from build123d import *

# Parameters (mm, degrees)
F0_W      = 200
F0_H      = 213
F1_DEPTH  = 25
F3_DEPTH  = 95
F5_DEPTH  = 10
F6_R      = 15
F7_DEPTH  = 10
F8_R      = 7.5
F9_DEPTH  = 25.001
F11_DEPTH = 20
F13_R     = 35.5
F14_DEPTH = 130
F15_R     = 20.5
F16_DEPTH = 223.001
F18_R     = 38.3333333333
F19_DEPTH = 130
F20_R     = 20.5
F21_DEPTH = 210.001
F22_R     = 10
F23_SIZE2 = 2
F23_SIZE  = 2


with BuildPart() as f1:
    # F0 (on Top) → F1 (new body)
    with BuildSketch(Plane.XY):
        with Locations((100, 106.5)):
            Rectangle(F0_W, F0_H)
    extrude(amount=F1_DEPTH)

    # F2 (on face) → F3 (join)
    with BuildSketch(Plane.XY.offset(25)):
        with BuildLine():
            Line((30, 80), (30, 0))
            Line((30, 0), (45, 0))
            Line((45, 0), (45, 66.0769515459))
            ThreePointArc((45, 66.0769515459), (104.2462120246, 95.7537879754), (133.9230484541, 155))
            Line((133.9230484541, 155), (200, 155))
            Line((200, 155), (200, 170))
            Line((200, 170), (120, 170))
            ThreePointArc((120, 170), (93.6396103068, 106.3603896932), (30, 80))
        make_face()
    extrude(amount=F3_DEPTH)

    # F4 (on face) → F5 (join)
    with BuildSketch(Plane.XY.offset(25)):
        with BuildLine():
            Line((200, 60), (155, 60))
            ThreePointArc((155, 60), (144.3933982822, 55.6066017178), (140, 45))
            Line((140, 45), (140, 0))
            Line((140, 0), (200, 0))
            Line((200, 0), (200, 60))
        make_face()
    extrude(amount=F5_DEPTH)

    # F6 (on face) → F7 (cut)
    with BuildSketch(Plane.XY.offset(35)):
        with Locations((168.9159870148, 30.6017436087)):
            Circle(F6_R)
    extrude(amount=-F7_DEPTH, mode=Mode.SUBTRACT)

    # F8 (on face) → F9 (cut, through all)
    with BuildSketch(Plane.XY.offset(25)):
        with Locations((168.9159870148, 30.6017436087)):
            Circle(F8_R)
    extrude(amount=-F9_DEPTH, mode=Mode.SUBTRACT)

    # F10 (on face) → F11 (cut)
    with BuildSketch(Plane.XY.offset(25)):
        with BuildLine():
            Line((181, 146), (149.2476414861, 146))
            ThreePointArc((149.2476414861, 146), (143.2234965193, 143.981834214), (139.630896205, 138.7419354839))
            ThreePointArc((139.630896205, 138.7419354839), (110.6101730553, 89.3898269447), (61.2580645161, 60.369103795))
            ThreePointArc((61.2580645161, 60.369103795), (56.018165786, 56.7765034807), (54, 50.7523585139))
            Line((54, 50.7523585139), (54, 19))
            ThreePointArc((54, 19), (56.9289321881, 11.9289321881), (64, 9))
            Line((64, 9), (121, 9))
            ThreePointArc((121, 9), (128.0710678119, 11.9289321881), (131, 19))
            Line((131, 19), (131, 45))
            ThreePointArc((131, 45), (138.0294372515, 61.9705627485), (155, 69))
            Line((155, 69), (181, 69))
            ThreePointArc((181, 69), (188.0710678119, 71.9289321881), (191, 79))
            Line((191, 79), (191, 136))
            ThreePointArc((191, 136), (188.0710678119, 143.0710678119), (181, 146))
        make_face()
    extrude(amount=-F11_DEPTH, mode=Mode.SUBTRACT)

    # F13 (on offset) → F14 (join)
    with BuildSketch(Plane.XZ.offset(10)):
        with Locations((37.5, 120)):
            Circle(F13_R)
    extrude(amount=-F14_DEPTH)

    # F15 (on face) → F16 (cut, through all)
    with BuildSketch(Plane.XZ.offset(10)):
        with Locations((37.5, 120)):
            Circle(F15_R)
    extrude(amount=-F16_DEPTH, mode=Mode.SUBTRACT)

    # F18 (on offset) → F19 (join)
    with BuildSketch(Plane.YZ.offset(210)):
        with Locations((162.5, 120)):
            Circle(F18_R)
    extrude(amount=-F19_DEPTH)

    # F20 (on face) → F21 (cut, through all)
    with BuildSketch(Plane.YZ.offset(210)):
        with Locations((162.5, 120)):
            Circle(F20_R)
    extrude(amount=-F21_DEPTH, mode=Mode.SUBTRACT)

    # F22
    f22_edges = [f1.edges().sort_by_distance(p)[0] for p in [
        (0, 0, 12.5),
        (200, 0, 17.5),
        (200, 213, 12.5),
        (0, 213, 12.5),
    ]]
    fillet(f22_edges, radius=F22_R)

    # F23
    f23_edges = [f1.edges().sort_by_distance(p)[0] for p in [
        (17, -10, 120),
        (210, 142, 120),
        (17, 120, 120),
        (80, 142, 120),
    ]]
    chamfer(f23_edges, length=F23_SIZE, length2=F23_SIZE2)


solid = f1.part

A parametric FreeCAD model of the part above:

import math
import FreeCAD as App
import Part
import Sketcher


def edges_at(feature, points):
    """Names of the edges that pass closest to the given points."""
    edges = feature.Shape.Edges
    near = lambda p: min(range(len(edges)), key=lambda i: edges[i].distToShape(Part.Vertex(*p))[0])
    return sorted({f"Edge{near(p) + 1}" for p in points})

doc = App.newDocument("Part")
params = doc.addObject("Spreadsheet::Sheet", "Params")
for row, (alias, value) in enumerate([
    ("sketch1_width", "200 mm"),
    ("sketch1_height", "213 mm"),
    ("pad1_length", "25 mm"),
    ("sketch2_radius", "105 mm"),
    ("sketch2_radius2", "90 mm"),
    ("sketch2_width", "15 mm"),
    ("sketch2_width2", "80 mm"),
    ("pad2_length", "95 mm"),
    ("sketch3_radius", "15 mm"),
    ("sketch3_width", "45 mm"),
    ("pad3_length", "10 mm"),
    ("sketch4_diameter", "30 mm"),
    ("pocket1_length", "10 mm"),
    ("sketch5_diameter", "15 mm"),
    ("sketch6_radius", "10 mm"),
    ("sketch6_radius2", "114 mm"),
    ("sketch6_radius3", "24 mm"),
    ("sketch6_width", "57 mm"),
    ("sketch6_width2", "26 mm"),
    ("pocket3_length", "20 mm"),
    ("sketch7_diameter", "71 mm"),
    ("pad4_length", "130 mm"),
    ("sketch8_diameter", "41 mm"),
    ("pad5_length", "130 mm"),
    ("sketch10_diameter", "41 mm"),
    ("fillet_radius", "10 mm"),
    ("chamfer_size", "2 mm"),
    ("chamfer_size2", "2 mm"),
], start=1):
    params.set(f"A{row}", alias)
    params.set(f"B{row}", "=" + value)
    params.setAlias(f"B{row}", alias)

body = doc.addObject("PartDesign::Body", "Body")

# Sketch on XY plane
sketch1 = doc.addObject("Sketcher::SketchObject", "Sketch")
body.addObject(sketch1)
sketch1.AttachmentSupport = (doc.XY_Plane, [""])
sketch1.MapMode = "FlatFace"
sketch1.addGeometry([
    Part.LineSegment(App.Vector(0, 213, 0), App.Vector(0, 0, 0)),
    Part.LineSegment(App.Vector(0, 0, 0), App.Vector(200, 0, 0)),
    Part.LineSegment(App.Vector(200, 0, 0), App.Vector(200, 213, 0)),
    Part.LineSegment(App.Vector(200, 213, 0), App.Vector(0, 213, 0)),
], False)
sketch1.addConstraint([
    Sketcher.Constraint("Coincident", 0, 2, 1, 1),
    Sketcher.Constraint("Coincident", 1, 2, 2, 1),
    Sketcher.Constraint("Coincident", 2, 2, 3, 1),
    Sketcher.Constraint("Coincident", 3, 2, 0, 1),
    Sketcher.Constraint("Vertical", 0),
    Sketcher.Constraint("Horizontal", 1),
    Sketcher.Constraint("Vertical", 2),
    Sketcher.Constraint("Horizontal", 3),
    Sketcher.Constraint("Coincident", 0, 2, -1, 1),
    Sketcher.Constraint("DistanceX", 1, 1, 1, 2, 200.0),
    Sketcher.Constraint("DistanceY", 0, 2, 0, 1, 213.0),
])
sketch1.setExpression("Constraints[9]", "Params.sketch1_width")
sketch1.setExpression("Constraints[10]", "Params.sketch1_height")
pad1 = doc.addObject("PartDesign::Pad", "Pad")
body.addObject(pad1)
pad1.Profile = sketch1
pad1.setExpression("Length", "Params.pad1_length")

# Sketch on XY plane
sketch2 = doc.addObject("Sketcher::SketchObject", "Sketch001")
body.addObject(sketch2)
sketch2.AttachmentSupport = (doc.XY_Plane, [""])
sketch2.MapMode = "FlatFace"
sketch2.AttachmentOffset = App.Placement(App.Vector(0, 0, 25), App.Rotation())
sketch2.addGeometry([
    Part.LineSegment(App.Vector(30, 80, 0), App.Vector(30, 0, 0)),  # 0
    Part.LineSegment(App.Vector(30, 0, 0), App.Vector(45, 0, 0)),  # 1
    Part.LineSegment(App.Vector(45, 0, 0), App.Vector(45, 66, 0)),  # 2
    Part.ArcOfCircle(Part.Circle(App.Vector(30, 170, 0), App.Vector(0, 0, 1), 105), math.radians(-82), math.radians(-8)),  # 3
    Part.LineSegment(App.Vector(134, 155, 0), App.Vector(200, 155, 0)),  # 4
    Part.LineSegment(App.Vector(200, 155, 0), App.Vector(200, 170, 0)),  # 5
    Part.LineSegment(App.Vector(200, 170, 0), App.Vector(120, 170, 0)),  # 6
    Part.ArcOfCircle(Part.Circle(App.Vector(30, 170, 0), App.Vector(0, 0, 1), 90), math.radians(-90), math.radians(0)),  # 7
], False)
sketch2.addConstraint([
    Sketcher.Constraint("Coincident", 0, 2, 1, 1),
    Sketcher.Constraint("Coincident", 1, 2, 2, 1),
    Sketcher.Constraint("Coincident", 2, 2, 3, 1),
    Sketcher.Constraint("Coincident", 3, 2, 4, 1),
    Sketcher.Constraint("Coincident", 4, 2, 5, 1),
    Sketcher.Constraint("Coincident", 5, 2, 6, 1),
    Sketcher.Constraint("Coincident", 6, 2, 7, 2),
    Sketcher.Constraint("Coincident", 7, 1, 0, 1),
    Sketcher.Constraint("Vertical", 0),
    Sketcher.Constraint("Horizontal", 1),
    Sketcher.Constraint("Vertical", 2),
    Sketcher.Constraint("Horizontal", 4),
    Sketcher.Constraint("Vertical", 5),
    Sketcher.Constraint("Horizontal", 6),
    Sketcher.Constraint("Coincident", 7, 3, 3, 3),
    Sketcher.Constraint("PointOnObject", 0, 2, -1),
    Sketcher.Constraint("Horizontal", 7, 3, 5, 2),
    Sketcher.Constraint("Vertical", 7, 3, 0, 2),
    Sketcher.Constraint("Equal", 6, 0),
    Sketcher.Constraint("Equal", 4, 2),
    Sketcher.Constraint("Radius", 3, 105.0),
    Sketcher.Constraint("Radius", 7, 90.0),
    Sketcher.Constraint("DistanceX", 1, 1, 1, 2, 15.0),
    Sketcher.Constraint("DistanceX", 6, 2, 6, 1, 80.0),
    Sketcher.Constraint("DistanceX", -1, 1, 3, 3, 30.0),
])
sketch2.setExpression("Constraints[20]", "Params.sketch2_radius")
sketch2.setExpression("Constraints[21]", "Params.sketch2_radius2")
sketch2.setExpression("Constraints[22]", "Params.sketch2_width")
sketch2.setExpression("Constraints[23]", "Params.sketch2_width2")
pad2 = doc.addObject("PartDesign::Pad", "Pad001")
body.addObject(pad2)
pad2.Profile = sketch2
pad2.setExpression("Length", "Params.pad2_length")

# Sketch on XY plane
sketch3 = doc.addObject("Sketcher::SketchObject", "Sketch002")
body.addObject(sketch3)
sketch3.AttachmentSupport = (doc.XY_Plane, [""])
sketch3.MapMode = "FlatFace"
sketch3.AttachmentOffset = App.Placement(App.Vector(0, 0, 25), App.Rotation())
sketch3.addGeometry([
    Part.LineSegment(App.Vector(200, 60, 0), App.Vector(155, 60, 0)),  # 0
    Part.ArcOfCircle(Part.Circle(App.Vector(155, 45, 0), App.Vector(0, 0, 1), 15), math.radians(90), math.radians(180)),  # 1
    Part.LineSegment(App.Vector(140, 45, 0), App.Vector(140, 0, 0)),  # 2
    Part.LineSegment(App.Vector(140, 0, 0), App.Vector(200, 0, 0)),  # 3
    Part.LineSegment(App.Vector(200, 0, 0), App.Vector(200, 60, 0)),  # 4
], False)
sketch3.addConstraint([
    Sketcher.Constraint("Tangent", 0, 2, 1, 1),
    Sketcher.Constraint("Tangent", 1, 2, 2, 1),
    Sketcher.Constraint("Coincident", 2, 2, 3, 1),
    Sketcher.Constraint("Coincident", 3, 2, 4, 1),
    Sketcher.Constraint("Coincident", 4, 2, 0, 1),
    Sketcher.Constraint("Horizontal", 0),
    Sketcher.Constraint("Vertical", 2),
    Sketcher.Constraint("Horizontal", 3),
    Sketcher.Constraint("Vertical", 4),
    Sketcher.Constraint("PointOnObject", 2, 2, -1),
    Sketcher.Constraint("Equal", 0, 2),
    Sketcher.Constraint("Radius", 1, 15.0),
    Sketcher.Constraint("DistanceX", 0, 2, 0, 1, 45.0),
    Sketcher.Constraint("DistanceX", -1, 1, 1, 3, 155.0),
])
sketch3.setExpression("Constraints[11]", "Params.sketch3_radius")
sketch3.setExpression("Constraints[12]", "Params.sketch3_width")
pad3 = doc.addObject("PartDesign::Pad", "Pad002")
body.addObject(pad3)
pad3.Profile = sketch3
pad3.setExpression("Length", "Params.pad3_length")

# Sketch on XY plane
sketch4 = doc.addObject("Sketcher::SketchObject", "Sketch003")
body.addObject(sketch4)
sketch4.AttachmentSupport = (doc.XY_Plane, [""])
sketch4.MapMode = "FlatFace"
sketch4.AttachmentOffset = App.Placement(App.Vector(0, 0, 35), App.Rotation())
sketch4.addGeometry(Part.Circle(App.Vector(169, 31, 0), App.Vector(0, 0, 1), 15), False)
sketch4.addConstraint([
    Sketcher.Constraint("Diameter", 0, 30.0),
    Sketcher.Constraint("DistanceX", -1, 1, 0, 3, 168.915987),
    Sketcher.Constraint("DistanceY", -1, 1, 0, 3, 30.601744),
])
sketch4.setExpression("Constraints[0]", "Params.sketch4_diameter")
pocket1 = doc.addObject("PartDesign::Pocket", "Pocket")
body.addObject(pocket1)
pocket1.Profile = sketch4
pocket1.setExpression("Length", "Params.pocket1_length")

# Sketch on XY plane
sketch5 = doc.addObject("Sketcher::SketchObject", "Sketch004")
body.addObject(sketch5)
sketch5.AttachmentSupport = (doc.XY_Plane, [""])
sketch5.MapMode = "FlatFace"
sketch5.AttachmentOffset = App.Placement(App.Vector(0, 0, 25), App.Rotation())
sketch5.addGeometry(Part.Circle(App.Vector(169, 31, 0), App.Vector(0, 0, 1), 8), False)
sketch5.addConstraint([
    Sketcher.Constraint("Diameter", 0, 15.0),
    Sketcher.Constraint("DistanceX", -1, 1, 0, 3, 168.915987),
    Sketcher.Constraint("DistanceY", -1, 1, 0, 3, 30.601744),
])
sketch5.setExpression("Constraints[0]", "Params.sketch5_diameter")
pocket2 = doc.addObject("PartDesign::Pocket", "Pocket001")
body.addObject(pocket2)
pocket2.Profile = sketch5
pocket2.Type = "ThroughAll"

# Sketch on XY plane
sketch6 = doc.addObject("Sketcher::SketchObject", "Sketch005")
body.addObject(sketch6)
sketch6.AttachmentSupport = (doc.XY_Plane, [""])
sketch6.MapMode = "FlatFace"
sketch6.AttachmentOffset = App.Placement(App.Vector(0, 0, 25), App.Rotation())
sketch6.addGeometry([
    Part.LineSegment(App.Vector(181, 146, 0), App.Vector(149, 146, 0)),  # 0
    Part.ArcOfCircle(Part.Circle(App.Vector(149, 136, 0), App.Vector(0, 0, 1), 10), math.radians(90), math.radians(164)),  # 1
    Part.ArcOfCircle(Part.Circle(App.Vector(30, 170, 0), App.Vector(0, 0, 1), 114), math.radians(-74), math.radians(-16)),  # 2
    Part.ArcOfCircle(Part.Circle(App.Vector(64, 51, 0), App.Vector(0, 0, 1), 10), math.radians(106), math.radians(180)),  # 3
    Part.LineSegment(App.Vector(54, 51, 0), App.Vector(54, 19, 0)),  # 4
    Part.ArcOfCircle(Part.Circle(App.Vector(64, 19, 0), App.Vector(0, 0, 1), 10), math.radians(180), math.radians(270)),  # 5
    Part.LineSegment(App.Vector(64, 9, 0), App.Vector(121, 9, 0)),  # 6
    Part.ArcOfCircle(Part.Circle(App.Vector(121, 19, 0), App.Vector(0, 0, 1), 10), math.radians(-90), math.radians(0)),  # 7
    Part.LineSegment(App.Vector(131, 19, 0), App.Vector(131, 45, 0)),  # 8
    Part.ArcOfCircle(Part.Circle(App.Vector(155, 45, 0), App.Vector(0, 0, 1), 24), math.radians(90), math.radians(180)),  # 9
    Part.LineSegment(App.Vector(155, 69, 0), App.Vector(181, 69, 0)),  # 10
    Part.ArcOfCircle(Part.Circle(App.Vector(181, 79, 0), App.Vector(0, 0, 1), 10), math.radians(-90), math.radians(0)),  # 11
    Part.LineSegment(App.Vector(191, 79, 0), App.Vector(191, 136, 0)),  # 12
    Part.ArcOfCircle(Part.Circle(App.Vector(181, 136, 0), App.Vector(0, 0, 1), 10), math.radians(0), math.radians(90)),  # 13
], False)
sketch6.addConstraint([
    Sketcher.Constraint("Tangent", 0, 2, 1, 1),
    Sketcher.Constraint("Tangent", 1, 2, 2, 2),
    Sketcher.Constraint("Tangent", 2, 1, 3, 1),
    Sketcher.Constraint("Tangent", 3, 2, 4, 1),
    Sketcher.Constraint("Tangent", 4, 2, 5, 1),
    Sketcher.Constraint("Tangent", 5, 2, 6, 1),
    Sketcher.Constraint("Tangent", 6, 2, 7, 1),
    Sketcher.Constraint("Tangent", 7, 2, 8, 1),
    Sketcher.Constraint("Tangent", 8, 2, 9, 2),
    Sketcher.Constraint("Tangent", 9, 1, 10, 1),
    Sketcher.Constraint("Tangent", 10, 2, 11, 1),
    Sketcher.Constraint("Tangent", 11, 2, 12, 1),
    Sketcher.Constraint("Tangent", 12, 2, 13, 1),
    Sketcher.Constraint("Tangent", 13, 2, 0, 1),
    Sketcher.Constraint("Horizontal", 0),
    Sketcher.Constraint("Vertical", 4),
    Sketcher.Constraint("Horizontal", 6),
    Sketcher.Constraint("Vertical", 8),
    Sketcher.Constraint("Horizontal", 10),
    Sketcher.Constraint("Vertical", 12),
    Sketcher.Constraint("Equal", 1, 3),
    Sketcher.Constraint("Equal", 3, 5),
    Sketcher.Constraint("Equal", 5, 7),
    Sketcher.Constraint("Equal", 7, 11),
    Sketcher.Constraint("Equal", 11, 13),
    Sketcher.Constraint("Equal", 0, 4),
    Sketcher.Constraint("Equal", 10, 8),
    Sketcher.Constraint("Equal", 6, 12),
    Sketcher.Constraint("Radius", 1, 10.0),
    Sketcher.Constraint("Radius", 2, 114.0),
    Sketcher.Constraint("Radius", 9, 24.0),
    Sketcher.Constraint("DistanceX", 6, 1, 6, 2, 57.0),
    Sketcher.Constraint("DistanceX", 10, 1, 10, 2, 26.0),
    Sketcher.Constraint("DistanceY", -1, 1, 1, 3, 136.0),
    Sketcher.Constraint("DistanceX", -1, 1, 2, 3, 30.0),
    Sketcher.Constraint("DistanceY", -1, 1, 2, 3, 170.0),
])
sketch6.setExpression("Constraints[28]", "Params.sketch6_radius")
sketch6.setExpression("Constraints[29]", "Params.sketch6_radius2")
sketch6.setExpression("Constraints[30]", "Params.sketch6_radius3")
sketch6.setExpression("Constraints[31]", "Params.sketch6_width")
sketch6.setExpression("Constraints[32]", "Params.sketch6_width2")
pocket3 = doc.addObject("PartDesign::Pocket", "Pocket002")
body.addObject(pocket3)
pocket3.Profile = sketch6
pocket3.setExpression("Length", "Params.pocket3_length")

# Sketch on XZ plane
sketch7 = doc.addObject("Sketcher::SketchObject", "Sketch006")
body.addObject(sketch7)
sketch7.AttachmentSupport = (doc.XZ_Plane, [""])
sketch7.MapMode = "FlatFace"
sketch7.AttachmentOffset = App.Placement(App.Vector(0, 0, 10), App.Rotation())
sketch7.addGeometry(Part.Circle(App.Vector(38, 120, 0), App.Vector(0, 0, 1), 36), False)
sketch7.addConstraint([
    Sketcher.Constraint("Diameter", 0, 71.0),
    Sketcher.Constraint("DistanceY", -1, 1, 0, 3, 120.0),
    Sketcher.Constraint("DistanceX", -1, 1, 0, 3, 37.5),
])
sketch7.setExpression("Constraints[0]", "Params.sketch7_diameter")
pad4 = doc.addObject("PartDesign::Pad", "Pad003")
body.addObject(pad4)
pad4.Profile = sketch7
pad4.setExpression("Length", "Params.pad4_length")
pad4.Reversed = True

# Sketch on XZ plane
sketch8 = doc.addObject("Sketcher::SketchObject", "Sketch007")
body.addObject(sketch8)
sketch8.AttachmentSupport = (doc.XZ_Plane, [""])
sketch8.MapMode = "FlatFace"
sketch8.AttachmentOffset = App.Placement(App.Vector(0, 0, 10), App.Rotation())
sketch8.addGeometry(Part.Circle(App.Vector(38, 120, 0), App.Vector(0, 0, 1), 20), False)
sketch8.addConstraint([
    Sketcher.Constraint("Diameter", 0, 41.0),
    Sketcher.Constraint("DistanceY", -1, 1, 0, 3, 120.0),
    Sketcher.Constraint("DistanceX", -1, 1, 0, 3, 37.5),
])
sketch8.setExpression("Constraints[0]", "Params.sketch8_diameter")
pocket4 = doc.addObject("PartDesign::Pocket", "Pocket003")
body.addObject(pocket4)
pocket4.Profile = sketch8
pocket4.Type = "ThroughAll"

# Sketch on YZ plane
sketch9 = doc.addObject("Sketcher::SketchObject", "Sketch008")
body.addObject(sketch9)
sketch9.AttachmentSupport = (doc.YZ_Plane, [""])
sketch9.MapMode = "FlatFace"
sketch9.AttachmentOffset = App.Placement(App.Vector(0, 0, 210), App.Rotation())
sketch9.addGeometry(Part.Circle(App.Vector(162, 120, 0), App.Vector(0, 0, 1), 38), False)
sketch9.addConstraint([
    Sketcher.Constraint("DistanceY", -1, 1, 0, 3, 120.0),
    Sketcher.Constraint("DistanceX", -1, 1, 0, 3, 162.5),
    Sketcher.Constraint("Diameter", 0, 76.666667),
])
pad5 = doc.addObject("PartDesign::Pad", "Pad004")
body.addObject(pad5)
pad5.Profile = sketch9
pad5.setExpression("Length", "Params.pad5_length")
pad5.Reversed = True

# Sketch on YZ plane
sketch10 = doc.addObject("Sketcher::SketchObject", "Sketch009")
body.addObject(sketch10)
sketch10.AttachmentSupport = (doc.YZ_Plane, [""])
sketch10.MapMode = "FlatFace"
sketch10.AttachmentOffset = App.Placement(App.Vector(0, 0, 210), App.Rotation())
sketch10.addGeometry(Part.Circle(App.Vector(162, 120, 0), App.Vector(0, 0, 1), 20), False)
sketch10.addConstraint([
    Sketcher.Constraint("Diameter", 0, 41.0),
    Sketcher.Constraint("DistanceY", -1, 1, 0, 3, 120.0),
    Sketcher.Constraint("DistanceX", -1, 1, 0, 3, 162.5),
])
sketch10.setExpression("Constraints[0]", "Params.sketch10_diameter")
pocket5 = doc.addObject("PartDesign::Pocket", "Pocket004")
body.addObject(pocket5)
pocket5.Profile = sketch10
pocket5.Type = "ThroughAll"
doc.recompute()

fillet = doc.addObject("PartDesign::Fillet", "Fillet")
body.addObject(fillet)
fillet.Base = (pocket5, edges_at(pocket5, [
    (0, 0, 12.5),
    (200, 0, 17.5),
    (200, 213, 12.5),
    (0, 213, 12.5),
]))
fillet.setExpression("Radius", "Params.fillet_radius")
doc.recompute()

chamfer = doc.addObject("PartDesign::Chamfer", "Chamfer")
body.addObject(chamfer)
chamfer.Base = (fillet, edges_at(fillet, [
    (17, -10, 120),
    (210, 142, 120),
    (17, 120, 120),
    (80, 142, 120),
]))
chamfer.ChamferType = "Two distances"
chamfer.setExpression("Size", "Params.chamfer_size")
chamfer.setExpression("Size2", "Params.chamfer_size2")

doc.recompute()
